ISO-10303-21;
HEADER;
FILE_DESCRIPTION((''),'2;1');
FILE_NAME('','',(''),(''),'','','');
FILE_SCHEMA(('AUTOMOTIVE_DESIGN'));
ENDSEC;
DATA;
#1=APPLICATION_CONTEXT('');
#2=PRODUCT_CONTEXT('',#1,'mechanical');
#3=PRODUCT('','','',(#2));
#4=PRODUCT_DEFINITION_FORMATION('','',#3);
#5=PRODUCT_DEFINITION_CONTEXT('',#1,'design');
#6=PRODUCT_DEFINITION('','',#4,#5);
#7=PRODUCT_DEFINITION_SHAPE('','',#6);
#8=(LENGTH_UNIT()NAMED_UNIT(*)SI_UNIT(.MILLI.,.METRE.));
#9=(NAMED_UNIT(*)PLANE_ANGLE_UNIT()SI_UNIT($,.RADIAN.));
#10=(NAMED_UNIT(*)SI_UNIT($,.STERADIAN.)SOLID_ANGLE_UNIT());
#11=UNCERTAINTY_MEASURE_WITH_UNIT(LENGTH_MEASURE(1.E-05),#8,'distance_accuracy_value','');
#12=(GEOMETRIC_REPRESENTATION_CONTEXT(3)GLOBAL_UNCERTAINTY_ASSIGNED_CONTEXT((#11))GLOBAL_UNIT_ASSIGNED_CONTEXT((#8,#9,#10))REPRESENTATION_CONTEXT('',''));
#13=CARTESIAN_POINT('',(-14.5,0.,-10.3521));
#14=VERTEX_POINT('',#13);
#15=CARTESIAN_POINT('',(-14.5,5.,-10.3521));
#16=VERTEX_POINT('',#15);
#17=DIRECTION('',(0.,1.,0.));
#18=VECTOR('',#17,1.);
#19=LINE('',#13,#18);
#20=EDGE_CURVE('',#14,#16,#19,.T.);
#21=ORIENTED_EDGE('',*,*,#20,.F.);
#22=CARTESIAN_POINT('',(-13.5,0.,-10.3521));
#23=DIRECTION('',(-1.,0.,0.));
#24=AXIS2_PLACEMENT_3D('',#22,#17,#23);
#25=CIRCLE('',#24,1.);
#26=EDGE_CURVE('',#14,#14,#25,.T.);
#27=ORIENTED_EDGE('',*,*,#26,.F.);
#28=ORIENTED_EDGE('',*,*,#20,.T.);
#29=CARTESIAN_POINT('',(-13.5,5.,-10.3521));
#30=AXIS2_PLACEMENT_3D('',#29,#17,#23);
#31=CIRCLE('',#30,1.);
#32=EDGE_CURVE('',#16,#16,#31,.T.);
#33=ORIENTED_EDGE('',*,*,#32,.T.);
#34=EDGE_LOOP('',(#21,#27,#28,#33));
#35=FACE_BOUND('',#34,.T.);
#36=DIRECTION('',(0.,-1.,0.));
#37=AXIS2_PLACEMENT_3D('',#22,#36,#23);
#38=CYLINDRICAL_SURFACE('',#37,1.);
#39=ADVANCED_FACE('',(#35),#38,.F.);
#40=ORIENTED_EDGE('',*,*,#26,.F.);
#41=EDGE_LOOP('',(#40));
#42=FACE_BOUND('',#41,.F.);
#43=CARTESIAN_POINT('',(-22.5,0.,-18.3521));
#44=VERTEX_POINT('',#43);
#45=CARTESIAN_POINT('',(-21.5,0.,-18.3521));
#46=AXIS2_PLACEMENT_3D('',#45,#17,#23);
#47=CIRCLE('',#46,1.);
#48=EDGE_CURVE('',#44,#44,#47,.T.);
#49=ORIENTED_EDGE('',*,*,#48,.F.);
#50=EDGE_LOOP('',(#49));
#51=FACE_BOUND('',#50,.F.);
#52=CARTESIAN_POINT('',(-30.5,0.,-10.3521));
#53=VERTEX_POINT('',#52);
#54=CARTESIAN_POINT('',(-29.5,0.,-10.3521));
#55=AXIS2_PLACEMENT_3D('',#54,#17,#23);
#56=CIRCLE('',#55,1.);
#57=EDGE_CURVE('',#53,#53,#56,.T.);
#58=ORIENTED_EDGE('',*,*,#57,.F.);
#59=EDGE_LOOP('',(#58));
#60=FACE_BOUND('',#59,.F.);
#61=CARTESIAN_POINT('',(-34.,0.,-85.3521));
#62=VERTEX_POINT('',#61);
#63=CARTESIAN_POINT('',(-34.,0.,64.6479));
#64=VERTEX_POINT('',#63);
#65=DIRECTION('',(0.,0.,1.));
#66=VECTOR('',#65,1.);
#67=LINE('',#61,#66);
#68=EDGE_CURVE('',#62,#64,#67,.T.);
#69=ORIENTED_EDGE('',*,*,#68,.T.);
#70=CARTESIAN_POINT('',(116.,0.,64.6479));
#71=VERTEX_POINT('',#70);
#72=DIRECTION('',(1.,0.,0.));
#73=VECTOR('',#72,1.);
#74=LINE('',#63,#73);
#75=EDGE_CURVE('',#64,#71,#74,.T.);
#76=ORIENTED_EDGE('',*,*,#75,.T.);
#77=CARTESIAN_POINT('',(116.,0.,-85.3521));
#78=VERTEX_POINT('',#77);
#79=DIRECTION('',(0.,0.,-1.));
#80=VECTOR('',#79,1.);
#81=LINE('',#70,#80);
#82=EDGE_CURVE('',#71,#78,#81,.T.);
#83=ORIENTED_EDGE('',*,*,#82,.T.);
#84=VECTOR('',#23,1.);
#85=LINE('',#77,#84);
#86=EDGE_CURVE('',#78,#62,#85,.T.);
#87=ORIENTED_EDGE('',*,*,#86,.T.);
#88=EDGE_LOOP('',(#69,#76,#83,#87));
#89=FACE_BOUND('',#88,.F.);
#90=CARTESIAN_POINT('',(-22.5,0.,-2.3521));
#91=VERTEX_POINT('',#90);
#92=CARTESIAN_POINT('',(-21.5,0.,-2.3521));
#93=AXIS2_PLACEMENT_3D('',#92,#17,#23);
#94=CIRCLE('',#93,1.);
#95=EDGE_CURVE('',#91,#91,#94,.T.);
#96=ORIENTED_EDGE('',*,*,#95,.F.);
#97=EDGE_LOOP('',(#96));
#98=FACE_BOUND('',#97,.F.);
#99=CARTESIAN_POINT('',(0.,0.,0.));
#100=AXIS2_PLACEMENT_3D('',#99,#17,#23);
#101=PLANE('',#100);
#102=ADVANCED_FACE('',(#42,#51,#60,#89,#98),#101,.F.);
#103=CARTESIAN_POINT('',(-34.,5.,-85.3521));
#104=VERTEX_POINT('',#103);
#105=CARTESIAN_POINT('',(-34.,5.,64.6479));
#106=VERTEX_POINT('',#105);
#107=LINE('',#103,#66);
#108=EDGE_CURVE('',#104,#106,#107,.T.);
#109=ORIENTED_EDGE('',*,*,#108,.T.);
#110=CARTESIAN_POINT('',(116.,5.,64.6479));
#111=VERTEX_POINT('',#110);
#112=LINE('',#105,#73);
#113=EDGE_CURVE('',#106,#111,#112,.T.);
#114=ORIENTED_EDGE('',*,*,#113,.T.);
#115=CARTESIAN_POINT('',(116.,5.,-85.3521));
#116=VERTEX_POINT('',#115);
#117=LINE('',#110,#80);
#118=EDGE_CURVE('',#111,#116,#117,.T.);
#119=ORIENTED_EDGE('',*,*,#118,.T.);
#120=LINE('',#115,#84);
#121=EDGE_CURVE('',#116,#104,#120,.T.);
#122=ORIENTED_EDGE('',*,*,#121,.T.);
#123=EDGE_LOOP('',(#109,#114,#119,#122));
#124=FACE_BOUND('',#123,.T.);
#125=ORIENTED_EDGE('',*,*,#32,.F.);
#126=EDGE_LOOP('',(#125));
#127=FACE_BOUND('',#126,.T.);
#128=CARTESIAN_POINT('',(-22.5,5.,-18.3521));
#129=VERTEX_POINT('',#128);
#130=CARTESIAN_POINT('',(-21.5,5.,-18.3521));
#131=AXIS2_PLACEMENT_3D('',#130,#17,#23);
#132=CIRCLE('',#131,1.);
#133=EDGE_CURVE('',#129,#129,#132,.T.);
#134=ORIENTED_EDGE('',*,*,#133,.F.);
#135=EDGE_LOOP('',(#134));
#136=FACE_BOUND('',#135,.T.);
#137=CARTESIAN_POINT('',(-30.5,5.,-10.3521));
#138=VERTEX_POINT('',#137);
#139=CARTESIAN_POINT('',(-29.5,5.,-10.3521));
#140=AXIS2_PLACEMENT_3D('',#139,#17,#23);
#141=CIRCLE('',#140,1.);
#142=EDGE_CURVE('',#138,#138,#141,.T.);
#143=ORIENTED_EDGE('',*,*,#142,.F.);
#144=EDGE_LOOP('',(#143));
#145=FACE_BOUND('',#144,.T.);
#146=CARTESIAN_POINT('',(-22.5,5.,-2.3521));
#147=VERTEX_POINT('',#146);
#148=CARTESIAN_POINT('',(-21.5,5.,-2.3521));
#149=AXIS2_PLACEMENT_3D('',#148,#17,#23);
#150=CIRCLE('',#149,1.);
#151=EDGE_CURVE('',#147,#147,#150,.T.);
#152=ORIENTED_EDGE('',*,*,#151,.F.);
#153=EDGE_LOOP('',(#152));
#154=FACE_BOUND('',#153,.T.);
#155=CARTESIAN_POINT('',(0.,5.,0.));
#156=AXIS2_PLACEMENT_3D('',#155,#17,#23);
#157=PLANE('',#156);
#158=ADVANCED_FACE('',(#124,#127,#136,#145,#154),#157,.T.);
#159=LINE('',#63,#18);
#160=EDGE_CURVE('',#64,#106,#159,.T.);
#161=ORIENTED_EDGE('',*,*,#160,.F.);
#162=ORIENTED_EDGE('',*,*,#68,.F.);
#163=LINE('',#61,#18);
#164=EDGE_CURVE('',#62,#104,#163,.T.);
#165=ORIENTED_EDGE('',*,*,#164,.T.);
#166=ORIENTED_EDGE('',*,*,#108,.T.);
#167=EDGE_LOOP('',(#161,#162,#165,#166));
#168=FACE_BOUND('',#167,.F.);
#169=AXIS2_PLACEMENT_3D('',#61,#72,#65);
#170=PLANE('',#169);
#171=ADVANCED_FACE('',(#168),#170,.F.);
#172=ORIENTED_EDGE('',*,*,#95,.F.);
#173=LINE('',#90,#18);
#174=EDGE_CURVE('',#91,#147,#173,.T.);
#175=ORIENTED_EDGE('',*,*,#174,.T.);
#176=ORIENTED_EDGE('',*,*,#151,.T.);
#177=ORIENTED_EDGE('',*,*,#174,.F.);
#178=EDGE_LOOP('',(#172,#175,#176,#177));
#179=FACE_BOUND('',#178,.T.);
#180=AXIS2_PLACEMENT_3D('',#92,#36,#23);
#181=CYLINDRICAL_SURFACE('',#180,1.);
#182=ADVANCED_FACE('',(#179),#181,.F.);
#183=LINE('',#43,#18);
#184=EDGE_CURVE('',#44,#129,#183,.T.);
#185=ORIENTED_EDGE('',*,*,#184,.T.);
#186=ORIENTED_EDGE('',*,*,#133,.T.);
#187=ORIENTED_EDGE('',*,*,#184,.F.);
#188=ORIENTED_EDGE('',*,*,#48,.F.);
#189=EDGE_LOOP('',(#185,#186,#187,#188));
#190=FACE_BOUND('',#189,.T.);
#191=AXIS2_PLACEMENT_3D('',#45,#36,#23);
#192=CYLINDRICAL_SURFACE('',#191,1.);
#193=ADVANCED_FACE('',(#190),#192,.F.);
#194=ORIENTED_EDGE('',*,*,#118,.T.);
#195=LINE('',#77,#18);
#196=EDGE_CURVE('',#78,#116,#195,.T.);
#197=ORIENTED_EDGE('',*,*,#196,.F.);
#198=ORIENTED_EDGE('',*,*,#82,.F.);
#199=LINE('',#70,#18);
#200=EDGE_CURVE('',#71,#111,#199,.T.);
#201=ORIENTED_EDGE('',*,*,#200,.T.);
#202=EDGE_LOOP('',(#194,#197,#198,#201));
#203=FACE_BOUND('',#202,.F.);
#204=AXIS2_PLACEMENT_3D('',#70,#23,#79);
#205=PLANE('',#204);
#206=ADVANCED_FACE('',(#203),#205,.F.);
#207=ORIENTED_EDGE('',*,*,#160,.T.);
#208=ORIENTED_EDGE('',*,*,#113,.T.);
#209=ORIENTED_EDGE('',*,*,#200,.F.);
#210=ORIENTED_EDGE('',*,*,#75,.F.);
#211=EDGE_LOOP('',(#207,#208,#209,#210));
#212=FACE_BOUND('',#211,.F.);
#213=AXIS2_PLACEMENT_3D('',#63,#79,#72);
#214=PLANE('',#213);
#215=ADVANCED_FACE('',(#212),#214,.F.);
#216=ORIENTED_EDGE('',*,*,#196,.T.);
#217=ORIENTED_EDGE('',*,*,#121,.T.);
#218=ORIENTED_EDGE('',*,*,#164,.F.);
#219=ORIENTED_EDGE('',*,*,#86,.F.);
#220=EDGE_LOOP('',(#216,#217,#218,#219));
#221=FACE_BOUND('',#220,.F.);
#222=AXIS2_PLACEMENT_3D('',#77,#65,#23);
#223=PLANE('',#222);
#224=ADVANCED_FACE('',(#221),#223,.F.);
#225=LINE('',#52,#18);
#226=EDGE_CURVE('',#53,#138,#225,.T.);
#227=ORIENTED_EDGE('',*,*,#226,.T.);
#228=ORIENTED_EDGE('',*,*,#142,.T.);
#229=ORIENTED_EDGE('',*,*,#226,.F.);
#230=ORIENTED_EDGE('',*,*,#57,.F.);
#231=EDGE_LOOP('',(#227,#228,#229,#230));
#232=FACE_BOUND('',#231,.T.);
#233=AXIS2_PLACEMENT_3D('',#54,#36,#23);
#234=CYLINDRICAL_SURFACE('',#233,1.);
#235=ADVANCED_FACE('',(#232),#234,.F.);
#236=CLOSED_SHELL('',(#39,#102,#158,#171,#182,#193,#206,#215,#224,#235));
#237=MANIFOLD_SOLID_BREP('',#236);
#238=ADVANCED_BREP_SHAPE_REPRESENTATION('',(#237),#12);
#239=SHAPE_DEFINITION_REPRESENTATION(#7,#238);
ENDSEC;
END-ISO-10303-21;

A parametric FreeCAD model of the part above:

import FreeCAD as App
import Part
import Sketcher

V = App.Vector
Q = App.Units.Quantity


def add_polygon(sketch, points):
    """Adds a closed chain of lines whose ends are joined by coincident constraints."""
    first, n = sketch.GeometryCount, len(points)
    for a, b in zip(points, points[1:] + points[:1]):
        sketch.addGeometry(Part.LineSegment(App.Vector(*a, 0), App.Vector(*b, 0)), False)
    for i in range(n):
        sketch.addConstraint(Sketcher.Constraint("Coincident", first + i, 2, first + (i + 1) % n, 1))

doc = App.newDocument("Part")
body = doc.addObject("PartDesign::Body", "Body")

# Sketch on XZ plane
sketch1 = body.newObject("Sketcher::SketchObject", "Sketch")
sketch1.AttachmentSupport = (doc.getObject("XZ_Plane"), [""])
sketch1.MapMode = "FlatFace"
add_polygon(sketch1, [(-34, -85.4), (-34, 64.6), (116, 64.6), (116, -85.4)])  # lines 0-3
sketch1.addGeometry(Part.Circle(V(-21.5, -18.4, 0), V(0, 0, 1), 1), False)  # 4
sketch1.addGeometry(Part.Circle(V(-13.5, -10.4, 0), V(0, 0, 1), 1), False)  # 5
sketch1.addGeometry(Part.Circle(V(-21.5, -2.4, 0), V(0, 0, 1), 1), False)  # 6
sketch1.addGeometry(Part.Circle(V(-29.5, -10.4, 0), V(0, 0, 1), 1), False)  # 7
sketch1.addConstraint(Sketcher.Constraint("Vertical", 0))
sketch1.addConstraint(Sketcher.Constraint("Horizontal", 1))
sketch1.addConstraint(Sketcher.Constraint("Vertical", 2))
sketch1.addConstraint(Sketcher.Constraint("Horizontal", 3))
sketch1.addConstraint(Sketcher.Constraint("Equal", 4, 5))
sketch1.addConstraint(Sketcher.Constraint("Equal", 5, 6))
sketch1.addConstraint(Sketcher.Constraint("Equal", 6, 7))
sketch1.addConstraint(Sketcher.Constraint("Horizontal", 5, 3, 7, 3))
sketch1.addConstraint(Sketcher.Constraint("Vertical", 4, 3, 6, 3))
sketch1.addConstraint(Sketcher.Constraint("Equal", 3, 0))
sketch1.addConstraint(Sketcher.Constraint("Diameter", 4, Q("2 mm")))
sketch1.addConstraint(Sketcher.Constraint("DistanceX", 1, 1, 1, 2, Q("150 mm")))
sketch1.addConstraint(Sketcher.Constraint("DistanceX", 4, 3, 5, 3, Q("8 mm")))
sketch1.addConstraint(Sketcher.Constraint("DistanceY", 4, 3, 5, 3, Q("8 mm")))
sketch1.addConstraint(Sketcher.Constraint("DistanceY", 5, 3, 6, 3, Q("8 mm")))
sketch1.addConstraint(Sketcher.Constraint("DistanceX", 7, 3, 4, 3, Q("8 mm")))
sketch1.addConstraint(Sketcher.Constraint("DistanceY", 7, 3, 0, 2, Q("75 mm")))
sketch1.addConstraint(Sketcher.Constraint("DistanceX", 0, 2, 7, 3, Q("4.5 mm")))
sketch1.addConstraint(Sketcher.Constraint("DistanceX", 0, 2, -1, 1, Q("34 mm")))
sketch1.addConstraint(Sketcher.Constraint("DistanceY", 4, 3, -1, 1, Q("18.352 mm")))
pad1 = body.newObject("PartDesign::Pad", "Pad")
pad1.Profile = sketch1
pad1.Length = 5
pad1.Reversed = True

doc.recompute()
